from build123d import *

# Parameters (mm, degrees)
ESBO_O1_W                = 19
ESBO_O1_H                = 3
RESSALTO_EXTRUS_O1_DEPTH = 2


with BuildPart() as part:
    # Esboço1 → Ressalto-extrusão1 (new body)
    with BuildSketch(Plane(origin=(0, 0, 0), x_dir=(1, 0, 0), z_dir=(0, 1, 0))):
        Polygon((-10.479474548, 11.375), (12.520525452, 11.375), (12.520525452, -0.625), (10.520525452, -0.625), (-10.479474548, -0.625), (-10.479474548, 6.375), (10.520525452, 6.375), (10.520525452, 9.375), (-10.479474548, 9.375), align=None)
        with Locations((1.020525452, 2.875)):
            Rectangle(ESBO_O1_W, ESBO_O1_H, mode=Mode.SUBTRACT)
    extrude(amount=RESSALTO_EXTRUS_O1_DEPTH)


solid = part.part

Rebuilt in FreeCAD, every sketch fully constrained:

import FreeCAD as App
import Part
import Sketcher
from FreeCAD import Vector
Q = App.Units.Quantity

doc = App.newDocument("Part")
params = doc.addObject("Spreadsheet::Sheet", "Params")
for row, (alias, value) in enumerate([
    ("sketch1_width", "23 mm"),
    ("sketch1_width2", "21 mm"),
    ("sketch1_width3", "19 mm"),
    ("sketch1_height", "2 mm"),
    ("sketch1_height2", "3 mm"),
    ("pad1_length", "2 mm"),
], start=1):
    params.set(f"A{row}", alias)
    params.set(f"B{row}", "=" + value)
    params.setAlias(f"B{row}", alias)

body = doc.addObject("PartDesign::Body", "Body")

# Sketch on XZ plane
sketch1 = body.newObject("Sketcher::SketchObject", "Sketch")
sketch1.AttachmentSupport = (doc.getObject("XZ_Plane"), [""])
sketch1.MapMode = "FlatFace"
sketch1.addGeometry([
    Part.LineSegment(Vector(12.5, -11.4, 0), Vector(-10.5, -11.4, 0)),  # 0
    Part.LineSegment(Vector(-10.5, -11.4, 0), Vector(-10.5, -9.4, 0)),  # 1
    Part.LineSegment(Vector(-10.5, -9.4, 0), Vector(10.5, -9.4, 0)),  # 2
    Part.LineSegment(Vector(10.5, -9.4, 0), Vector(10.5, -6.4, 0)),  # 3
    Part.LineSegment(Vector(10.5, -6.4, 0), Vector(-10.5, -6.4, 0)),  # 4
    Part.LineSegment(Vector(-10.5, -6.4, 0), Vector(-10.5, 0.6, 0)),  # 5
    Part.LineSegment(Vector(-10.5, 0.6, 0), Vector(12.5, 0.6, 0)),  # 6
    Part.LineSegment(Vector(12.5, 0.6, 0), Vector(12.5, -11.4, 0)),  # 7
    Part.LineSegment(Vector(-8.5, -1.4, 0), Vector(-8.5, -4.4, 0)),  # 8
    Part.LineSegment(Vector(-8.5, -4.4, 0), Vector(10.5, -4.4, 0)),  # 9
    Part.LineSegment(Vector(10.5, -4.4, 0), Vector(10.5, -1.4, 0)),  # 10
    Part.LineSegment(Vector(10.5, -1.4, 0), Vector(-8.5, -1.4, 0)),  # 11
], False)
sketch1.addConstraint([
    Sketcher.Constraint("Coincident", 0, 2, 1, 1),
    Sketcher.Constraint("Coincident", 1, 2, 2, 1),
    Sketcher.Constraint("Coincident", 2, 2, 3, 1),
    Sketcher.Constraint("Coincident", 3, 2, 4, 1),
    Sketcher.Constraint("Coincident", 4, 2, 5, 1),
    Sketcher.Constraint("Coincident", 5, 2, 6, 1),
    Sketcher.Constraint("Coincident", 6, 2, 7, 1),
    Sketcher.Constraint("Coincident", 7, 2, 0, 1),
    Sketcher.Constraint("Coincident", 8, 2, 9, 1),
    Sketcher.Constraint("Coincident", 9, 2, 10, 1),
    Sketcher.Constraint("Coincident", 10, 2, 11, 1),
    Sketcher.Constraint("Coincident", 11, 2, 8, 1),
    Sketcher.Constraint("Horizontal", 0),
    Sketcher.Constraint("Vertical", 1),
    Sketcher.Constraint("Horizontal", 2),
    Sketcher.Constraint("Vertical", 3),
    Sketcher.Constraint("Horizontal", 4),
    Sketcher.Constraint("Vertical", 5),
    Sketcher.Constraint("Horizontal", 6),
    Sketcher.Constraint("Vertical", 7),
    Sketcher.Constraint("Vertical", 8),
    Sketcher.Constraint("Horizontal", 9),
    Sketcher.Constraint("Vertical", 10),
    Sketcher.Constraint("Horizontal", 11),
    Sketcher.Constraint("Vertical", 1, 2, 4, 2),
    Sketcher.Constraint("Vertical", 3, 2, 9, 2),
    Sketcher.Constraint("Equal", 3, 8),
    Sketcher.Constraint("DistanceX", 0, 2, 0, 1, Q("23 mm")),
    Sketcher.Constraint("DistanceX", 2, 1, 2, 2, Q("21 mm")),
    Sketcher.Constraint("DistanceX", 9, 1, 9, 2, Q("19 mm")),
    Sketcher.Constraint("DistanceY", 1, 1, 1, 2, Q("2 mm")),
    Sketcher.Constraint("DistanceY", 3, 1, 3, 2, Q("3 mm")),
    Sketcher.Constraint("DistanceY", 5, 1, 5, 2, Q("7 mm")),
    Sketcher.Constraint("DistanceY", 4, 2, 8, 2, Q("2 mm")),
    Sketcher.Constraint("DistanceY", 0, 2, -1, 1, Q("11.375 mm")),
    Sketcher.Constraint("DistanceX", 0, 2, -1, 1, Q("10.479475 mm")),
])
sketch1.setExpression("Constraints[27]", "Params.sketch1_width")
sketch1.setExpression("Constraints[28]", "Params.sketch1_width2")
sketch1.setExpression("Constraints[29]", "Params.sketch1_width3")
sketch1.setExpression("Constraints[30]", "Params.sketch1_height")
sketch1.setExpression("Constraints[31]", "Params.sketch1_height2")
pad1 = body.newObject("PartDesign::Pad", "Pad")
pad1.Profile = sketch1
pad1.setExpression("Length", "Params.pad1_length")
pad1.Reversed = True

doc.recompute()
